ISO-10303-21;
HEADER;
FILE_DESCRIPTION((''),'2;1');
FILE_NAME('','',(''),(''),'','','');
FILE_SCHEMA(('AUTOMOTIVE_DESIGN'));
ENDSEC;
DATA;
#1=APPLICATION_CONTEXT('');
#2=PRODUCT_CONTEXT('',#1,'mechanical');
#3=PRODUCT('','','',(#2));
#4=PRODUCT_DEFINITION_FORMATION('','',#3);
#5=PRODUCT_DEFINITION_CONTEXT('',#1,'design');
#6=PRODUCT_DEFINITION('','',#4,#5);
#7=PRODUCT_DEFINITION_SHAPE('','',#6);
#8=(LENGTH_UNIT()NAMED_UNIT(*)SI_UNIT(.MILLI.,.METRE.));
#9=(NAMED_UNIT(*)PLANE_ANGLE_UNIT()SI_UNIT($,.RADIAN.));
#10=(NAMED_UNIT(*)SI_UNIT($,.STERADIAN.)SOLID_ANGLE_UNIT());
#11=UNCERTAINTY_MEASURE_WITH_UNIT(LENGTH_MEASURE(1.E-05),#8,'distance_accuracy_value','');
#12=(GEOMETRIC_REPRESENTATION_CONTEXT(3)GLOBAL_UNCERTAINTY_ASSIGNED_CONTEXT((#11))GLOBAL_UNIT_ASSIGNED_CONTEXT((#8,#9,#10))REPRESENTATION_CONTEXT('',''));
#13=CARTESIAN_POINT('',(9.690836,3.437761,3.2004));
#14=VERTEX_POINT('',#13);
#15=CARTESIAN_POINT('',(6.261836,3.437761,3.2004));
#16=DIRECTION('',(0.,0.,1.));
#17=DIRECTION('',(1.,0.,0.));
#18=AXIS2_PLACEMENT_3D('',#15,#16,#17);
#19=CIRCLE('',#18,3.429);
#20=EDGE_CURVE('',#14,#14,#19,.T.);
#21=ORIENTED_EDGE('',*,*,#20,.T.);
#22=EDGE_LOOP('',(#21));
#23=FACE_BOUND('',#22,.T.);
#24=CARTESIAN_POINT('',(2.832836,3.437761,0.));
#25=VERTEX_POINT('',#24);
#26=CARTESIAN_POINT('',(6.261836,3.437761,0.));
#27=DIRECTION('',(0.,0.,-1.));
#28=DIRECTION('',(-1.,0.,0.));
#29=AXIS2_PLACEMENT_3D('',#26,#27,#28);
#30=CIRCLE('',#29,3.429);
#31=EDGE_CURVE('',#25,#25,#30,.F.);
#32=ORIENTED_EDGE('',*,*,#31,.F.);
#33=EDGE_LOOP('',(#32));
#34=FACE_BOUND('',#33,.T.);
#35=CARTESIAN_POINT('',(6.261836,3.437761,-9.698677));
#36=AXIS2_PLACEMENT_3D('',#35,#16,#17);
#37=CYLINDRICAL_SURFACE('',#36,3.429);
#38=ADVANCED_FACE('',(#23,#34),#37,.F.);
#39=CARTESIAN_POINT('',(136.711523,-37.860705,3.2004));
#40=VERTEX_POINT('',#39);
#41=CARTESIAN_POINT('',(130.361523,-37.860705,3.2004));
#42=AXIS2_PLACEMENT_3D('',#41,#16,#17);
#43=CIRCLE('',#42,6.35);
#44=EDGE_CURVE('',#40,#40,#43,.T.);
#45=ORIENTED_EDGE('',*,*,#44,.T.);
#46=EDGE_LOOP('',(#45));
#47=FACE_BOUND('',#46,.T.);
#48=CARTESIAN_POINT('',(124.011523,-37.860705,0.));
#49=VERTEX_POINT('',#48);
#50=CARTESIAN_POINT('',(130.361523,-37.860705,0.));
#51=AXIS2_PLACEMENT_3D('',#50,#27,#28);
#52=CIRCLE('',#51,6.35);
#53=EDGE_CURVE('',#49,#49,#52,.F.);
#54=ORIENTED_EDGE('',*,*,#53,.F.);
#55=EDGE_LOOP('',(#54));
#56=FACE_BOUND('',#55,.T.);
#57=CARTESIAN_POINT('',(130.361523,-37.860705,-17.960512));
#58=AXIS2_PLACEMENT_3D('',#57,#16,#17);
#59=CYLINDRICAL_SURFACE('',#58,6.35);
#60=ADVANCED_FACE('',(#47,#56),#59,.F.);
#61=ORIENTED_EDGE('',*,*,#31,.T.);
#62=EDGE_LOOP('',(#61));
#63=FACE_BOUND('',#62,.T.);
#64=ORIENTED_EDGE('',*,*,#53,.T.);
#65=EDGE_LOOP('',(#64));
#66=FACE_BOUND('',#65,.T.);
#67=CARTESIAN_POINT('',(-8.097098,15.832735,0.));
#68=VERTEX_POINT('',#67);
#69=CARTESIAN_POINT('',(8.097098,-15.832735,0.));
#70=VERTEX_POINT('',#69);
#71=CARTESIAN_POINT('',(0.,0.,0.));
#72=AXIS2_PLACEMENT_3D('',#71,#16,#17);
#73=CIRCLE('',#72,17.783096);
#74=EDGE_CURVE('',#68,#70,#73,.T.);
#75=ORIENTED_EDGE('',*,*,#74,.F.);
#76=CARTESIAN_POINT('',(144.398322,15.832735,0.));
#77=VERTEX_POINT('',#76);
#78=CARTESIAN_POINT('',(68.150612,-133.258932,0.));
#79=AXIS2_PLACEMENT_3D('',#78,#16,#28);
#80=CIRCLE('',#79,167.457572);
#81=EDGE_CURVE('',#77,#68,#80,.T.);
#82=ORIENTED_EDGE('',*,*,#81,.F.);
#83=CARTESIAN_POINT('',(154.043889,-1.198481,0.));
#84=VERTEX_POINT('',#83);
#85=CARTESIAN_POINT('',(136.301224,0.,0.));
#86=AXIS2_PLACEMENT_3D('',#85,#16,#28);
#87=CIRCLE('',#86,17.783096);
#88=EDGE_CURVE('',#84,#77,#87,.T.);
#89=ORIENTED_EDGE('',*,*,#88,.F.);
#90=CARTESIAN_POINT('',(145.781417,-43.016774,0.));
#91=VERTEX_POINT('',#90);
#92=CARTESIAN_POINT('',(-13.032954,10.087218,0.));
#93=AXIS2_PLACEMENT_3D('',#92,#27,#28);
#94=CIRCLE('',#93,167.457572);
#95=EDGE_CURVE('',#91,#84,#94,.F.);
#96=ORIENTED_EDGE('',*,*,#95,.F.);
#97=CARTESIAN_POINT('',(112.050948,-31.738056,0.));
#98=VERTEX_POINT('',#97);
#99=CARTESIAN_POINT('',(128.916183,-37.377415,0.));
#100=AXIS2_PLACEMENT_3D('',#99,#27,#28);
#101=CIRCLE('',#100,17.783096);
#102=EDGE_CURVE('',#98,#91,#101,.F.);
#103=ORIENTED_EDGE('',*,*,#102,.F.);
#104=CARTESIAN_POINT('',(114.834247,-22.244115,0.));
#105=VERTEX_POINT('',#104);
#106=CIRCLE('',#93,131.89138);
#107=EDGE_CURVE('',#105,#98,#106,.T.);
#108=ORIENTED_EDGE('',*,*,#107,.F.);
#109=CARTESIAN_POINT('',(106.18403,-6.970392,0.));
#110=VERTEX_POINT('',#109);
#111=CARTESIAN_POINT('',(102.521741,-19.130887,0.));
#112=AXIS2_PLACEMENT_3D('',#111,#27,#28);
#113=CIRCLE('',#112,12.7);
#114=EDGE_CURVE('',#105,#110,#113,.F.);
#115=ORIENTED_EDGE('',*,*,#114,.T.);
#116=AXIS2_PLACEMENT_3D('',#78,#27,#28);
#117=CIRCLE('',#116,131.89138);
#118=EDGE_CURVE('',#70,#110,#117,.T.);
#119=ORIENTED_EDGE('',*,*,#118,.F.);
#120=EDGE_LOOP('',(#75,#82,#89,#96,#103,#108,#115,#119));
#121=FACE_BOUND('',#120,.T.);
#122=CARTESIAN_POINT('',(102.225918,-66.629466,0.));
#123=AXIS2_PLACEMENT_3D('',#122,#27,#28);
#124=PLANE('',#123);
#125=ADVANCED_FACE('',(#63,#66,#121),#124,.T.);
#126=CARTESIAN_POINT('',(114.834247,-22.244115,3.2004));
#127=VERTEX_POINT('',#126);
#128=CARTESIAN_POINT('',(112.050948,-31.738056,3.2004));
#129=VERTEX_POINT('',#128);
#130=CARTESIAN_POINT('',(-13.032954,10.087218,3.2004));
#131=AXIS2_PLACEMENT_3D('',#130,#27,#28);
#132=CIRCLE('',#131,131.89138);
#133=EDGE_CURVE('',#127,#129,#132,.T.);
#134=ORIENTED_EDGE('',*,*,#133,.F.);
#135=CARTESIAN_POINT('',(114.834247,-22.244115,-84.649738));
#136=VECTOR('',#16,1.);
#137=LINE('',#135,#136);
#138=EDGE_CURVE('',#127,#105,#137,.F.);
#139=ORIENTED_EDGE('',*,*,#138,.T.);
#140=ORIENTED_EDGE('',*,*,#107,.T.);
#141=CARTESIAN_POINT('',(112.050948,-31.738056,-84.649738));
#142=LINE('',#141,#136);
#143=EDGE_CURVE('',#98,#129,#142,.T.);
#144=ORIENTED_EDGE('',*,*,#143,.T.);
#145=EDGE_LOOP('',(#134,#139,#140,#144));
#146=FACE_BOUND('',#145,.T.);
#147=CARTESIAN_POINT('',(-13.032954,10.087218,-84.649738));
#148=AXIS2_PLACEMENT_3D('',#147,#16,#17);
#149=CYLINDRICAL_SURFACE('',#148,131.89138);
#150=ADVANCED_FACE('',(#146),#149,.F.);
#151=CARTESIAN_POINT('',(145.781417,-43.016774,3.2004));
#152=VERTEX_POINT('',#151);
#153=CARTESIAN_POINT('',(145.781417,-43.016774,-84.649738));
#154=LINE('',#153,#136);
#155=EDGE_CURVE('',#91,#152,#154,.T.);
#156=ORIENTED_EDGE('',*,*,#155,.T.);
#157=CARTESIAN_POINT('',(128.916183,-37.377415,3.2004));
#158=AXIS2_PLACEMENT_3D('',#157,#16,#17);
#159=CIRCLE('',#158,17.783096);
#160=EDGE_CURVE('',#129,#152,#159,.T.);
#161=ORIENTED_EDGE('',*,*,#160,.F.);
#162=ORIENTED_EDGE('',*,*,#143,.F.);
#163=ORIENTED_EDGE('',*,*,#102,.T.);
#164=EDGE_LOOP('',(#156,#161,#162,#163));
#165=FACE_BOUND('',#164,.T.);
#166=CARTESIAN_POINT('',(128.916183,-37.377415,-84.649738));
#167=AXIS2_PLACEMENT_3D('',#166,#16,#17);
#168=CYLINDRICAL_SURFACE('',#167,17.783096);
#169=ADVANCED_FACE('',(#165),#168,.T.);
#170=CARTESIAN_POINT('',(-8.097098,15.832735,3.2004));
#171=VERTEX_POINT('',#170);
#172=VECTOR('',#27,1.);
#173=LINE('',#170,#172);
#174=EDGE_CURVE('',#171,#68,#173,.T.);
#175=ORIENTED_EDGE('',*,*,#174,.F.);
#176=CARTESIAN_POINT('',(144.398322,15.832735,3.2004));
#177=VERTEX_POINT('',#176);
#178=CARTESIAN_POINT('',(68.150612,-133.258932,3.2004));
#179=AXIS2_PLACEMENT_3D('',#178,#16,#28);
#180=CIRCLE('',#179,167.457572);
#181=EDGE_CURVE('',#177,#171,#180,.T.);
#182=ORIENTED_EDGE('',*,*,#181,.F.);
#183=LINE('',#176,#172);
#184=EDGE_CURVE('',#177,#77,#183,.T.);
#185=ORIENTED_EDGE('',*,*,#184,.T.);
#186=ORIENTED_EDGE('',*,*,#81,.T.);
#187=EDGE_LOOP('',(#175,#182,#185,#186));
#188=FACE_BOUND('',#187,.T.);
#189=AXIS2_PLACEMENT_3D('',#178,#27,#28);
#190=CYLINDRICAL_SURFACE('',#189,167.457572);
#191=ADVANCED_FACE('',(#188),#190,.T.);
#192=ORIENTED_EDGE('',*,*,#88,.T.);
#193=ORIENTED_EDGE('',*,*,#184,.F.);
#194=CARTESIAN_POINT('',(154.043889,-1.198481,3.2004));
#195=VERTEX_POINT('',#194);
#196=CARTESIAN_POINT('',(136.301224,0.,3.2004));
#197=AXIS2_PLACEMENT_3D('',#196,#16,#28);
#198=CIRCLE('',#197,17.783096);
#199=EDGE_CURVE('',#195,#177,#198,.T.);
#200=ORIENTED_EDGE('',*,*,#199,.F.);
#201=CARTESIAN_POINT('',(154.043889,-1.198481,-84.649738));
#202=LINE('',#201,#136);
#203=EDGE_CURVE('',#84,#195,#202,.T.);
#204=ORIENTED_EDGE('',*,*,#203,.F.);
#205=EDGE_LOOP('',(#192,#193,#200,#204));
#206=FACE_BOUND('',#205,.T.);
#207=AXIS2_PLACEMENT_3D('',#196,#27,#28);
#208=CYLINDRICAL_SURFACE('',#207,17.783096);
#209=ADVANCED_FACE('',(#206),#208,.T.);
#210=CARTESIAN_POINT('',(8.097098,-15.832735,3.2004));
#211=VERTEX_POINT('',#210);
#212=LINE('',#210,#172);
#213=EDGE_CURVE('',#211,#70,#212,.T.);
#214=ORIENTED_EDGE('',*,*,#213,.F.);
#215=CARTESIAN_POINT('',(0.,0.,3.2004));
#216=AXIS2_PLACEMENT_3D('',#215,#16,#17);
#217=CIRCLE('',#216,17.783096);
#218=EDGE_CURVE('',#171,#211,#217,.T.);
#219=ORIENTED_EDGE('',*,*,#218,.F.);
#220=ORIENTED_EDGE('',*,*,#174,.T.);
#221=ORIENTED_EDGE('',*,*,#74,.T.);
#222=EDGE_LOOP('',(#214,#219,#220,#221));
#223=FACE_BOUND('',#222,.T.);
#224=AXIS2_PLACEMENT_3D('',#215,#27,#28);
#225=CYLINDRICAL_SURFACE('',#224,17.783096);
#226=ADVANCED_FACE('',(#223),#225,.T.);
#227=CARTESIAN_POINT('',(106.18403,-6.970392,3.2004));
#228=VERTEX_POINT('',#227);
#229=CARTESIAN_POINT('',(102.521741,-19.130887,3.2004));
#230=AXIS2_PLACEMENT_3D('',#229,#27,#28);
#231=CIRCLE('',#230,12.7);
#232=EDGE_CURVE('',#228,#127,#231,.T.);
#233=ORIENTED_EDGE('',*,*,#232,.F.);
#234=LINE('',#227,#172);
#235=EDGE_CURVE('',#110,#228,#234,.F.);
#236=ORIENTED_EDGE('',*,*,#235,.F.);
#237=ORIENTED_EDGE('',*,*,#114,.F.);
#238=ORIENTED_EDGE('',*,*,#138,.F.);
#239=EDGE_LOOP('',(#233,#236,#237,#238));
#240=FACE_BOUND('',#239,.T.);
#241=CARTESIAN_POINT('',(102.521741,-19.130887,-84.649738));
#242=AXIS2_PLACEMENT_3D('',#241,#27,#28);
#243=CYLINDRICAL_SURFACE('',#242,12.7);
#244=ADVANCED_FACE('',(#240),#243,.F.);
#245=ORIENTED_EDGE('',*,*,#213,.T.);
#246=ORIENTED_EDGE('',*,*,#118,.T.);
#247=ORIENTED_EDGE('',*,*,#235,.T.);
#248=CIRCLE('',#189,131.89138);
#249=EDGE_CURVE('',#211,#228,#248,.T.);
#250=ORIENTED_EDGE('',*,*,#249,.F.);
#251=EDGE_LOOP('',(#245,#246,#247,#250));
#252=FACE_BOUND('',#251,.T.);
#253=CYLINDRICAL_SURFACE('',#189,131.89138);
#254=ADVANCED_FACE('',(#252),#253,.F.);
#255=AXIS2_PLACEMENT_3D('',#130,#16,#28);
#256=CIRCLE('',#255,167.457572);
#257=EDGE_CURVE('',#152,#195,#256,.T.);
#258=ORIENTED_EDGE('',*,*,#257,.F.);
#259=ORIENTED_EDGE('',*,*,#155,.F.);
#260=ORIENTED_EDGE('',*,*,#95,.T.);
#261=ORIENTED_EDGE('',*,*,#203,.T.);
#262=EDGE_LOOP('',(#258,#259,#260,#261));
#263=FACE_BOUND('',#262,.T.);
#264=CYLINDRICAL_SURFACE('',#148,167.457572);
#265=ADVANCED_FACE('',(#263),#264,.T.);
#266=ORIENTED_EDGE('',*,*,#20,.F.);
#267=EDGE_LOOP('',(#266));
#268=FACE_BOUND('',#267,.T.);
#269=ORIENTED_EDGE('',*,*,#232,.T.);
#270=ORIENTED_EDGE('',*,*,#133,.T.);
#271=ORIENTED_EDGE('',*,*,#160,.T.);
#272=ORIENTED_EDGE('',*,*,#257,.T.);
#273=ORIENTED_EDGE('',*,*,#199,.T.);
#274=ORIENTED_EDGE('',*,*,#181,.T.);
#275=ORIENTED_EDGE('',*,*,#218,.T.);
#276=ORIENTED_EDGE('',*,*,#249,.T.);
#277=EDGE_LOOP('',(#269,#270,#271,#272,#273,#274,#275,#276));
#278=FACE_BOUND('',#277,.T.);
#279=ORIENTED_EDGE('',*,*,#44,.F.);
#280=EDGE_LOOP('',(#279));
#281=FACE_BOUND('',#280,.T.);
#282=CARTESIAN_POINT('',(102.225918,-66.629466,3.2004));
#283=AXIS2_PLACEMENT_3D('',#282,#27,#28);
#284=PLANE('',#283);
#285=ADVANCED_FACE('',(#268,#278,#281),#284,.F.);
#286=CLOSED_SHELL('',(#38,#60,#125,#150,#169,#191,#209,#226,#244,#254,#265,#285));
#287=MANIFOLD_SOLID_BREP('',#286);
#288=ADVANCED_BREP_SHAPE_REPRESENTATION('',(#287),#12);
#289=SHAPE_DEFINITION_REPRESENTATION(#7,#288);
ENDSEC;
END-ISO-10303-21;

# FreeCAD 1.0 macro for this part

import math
import FreeCAD as App
import Part
import Sketcher

V = App.Vector
Q = App.Units.Quantity


def edges_at(feature, points):
    """Names of the edges that pass closest to the given points."""
    edges = feature.Shape.Edges
    near = lambda p: min(range(len(edges)), key=lambda i: edges[i].distToShape(Part.Vertex(*p))[0])
    return sorted({f"Edge{near(p) + 1}" for p in points})

doc = App.newDocument("Part")
body = doc.addObject("PartDesign::Body", "Body")

sketch1 = body.newObject("Sketcher::SketchObject", "Sketch")
sketch1.AttachmentSupport = (doc.getObject("XY_Plane"), [""])
sketch1.MapMode = "FlatFace"
sketch1.addGeometry([
    Part.ArcOfCircle(Part.Circle(V(68, -133, 0), V(0, 0, 1), 167), math.radians(63), math.radians(117)),
    Part.ArcOfCircle(Part.Circle(V(0, 0, 0), V(0, 0, 1), 18), math.radians(117), math.radians(297)),
    Part.ArcOfCircle(Part.Circle(V(68, -133, 0), V(0, 0, 1), 132), math.radians(63), math.radians(117)),
    Part.ArcOfCircle(Part.Circle(V(136, 0, 0), V(0, 0, 1), 18), math.radians(-117), math.radians(63)),
], False)
sketch1.addConstraint([
    Sketcher.Constraint("Tangent", 0, 2, 1, 1),
    Sketcher.Constraint("Tangent", 1, 2, 2, 2),
    Sketcher.Constraint("Tangent", 2, 1, 3, 1),
    Sketcher.Constraint("Tangent", 3, 2, 0, 1),
    Sketcher.Constraint("Coincident", 1, 3, -1, 1),
    Sketcher.Constraint("Coincident", 2, 3, 0, 3),
    Sketcher.Constraint("PointOnObject", 3, 3, -1),
    Sketcher.Constraint("Radius", 0, 167.457572),
    Sketcher.Constraint("Radius", 2, 131.89138),
    Sketcher.Constraint("DistanceY", 0, 3, -1, 1, 133.258932),
])
pad1 = body.newObject("PartDesign::Pad", "Pad")
pad1.Profile = sketch1
pad1.Length = Q("0.126 in")

sketch2 = body.newObject("Sketcher::SketchObject", "Sketch001")
sketch2.AttachmentSupport = (doc.getObject("XY_Plane"), [""])
sketch2.MapMode = "FlatFace"
sketch2.AttachmentOffset = App.Placement(V(0, 0, 0.126 * 25.4), App.Rotation())
sketch2.addGeometry(Part.Circle(V(6.3, 3.4, 0), V(0, 0, 1), 3.4), False)
sketch2.addConstraint([
    Sketcher.Constraint("Diameter", 0, Q("0.27 in")),
    Sketcher.Constraint("DistanceY", -1, 1, 0, 3, 3.437761),
    Sketcher.Constraint("DistanceX", -1, 1, 0, 3, 6.261836),
])
pocket1 = body.newObject("PartDesign::Pocket", "Pocket")
pocket1.Profile = sketch2
pocket1.Length = Q("0.126 in")

sketch3 = body.newObject("Sketcher::SketchObject", "Sketch002")
sketch3.AttachmentSupport = (doc.getObject("XY_Plane"), [""])
sketch3.MapMode = "FlatFace"
sketch3.addGeometry([
    Part.ArcOfCircle(Part.Circle(V(136, 0, 0), V(0, 0, 1), 18), math.radians(-4), math.radians(176)),
    Part.ArcOfCircle(Part.Circle(V(-13, 10, 0), V(0, 0, 1), 132), math.radians(-18.49), math.radians(-3.86)),
    Part.ArcOfCircle(Part.Circle(V(129, -37, 0), V(0, 0, 1), 18), math.radians(162), math.radians(342)),
    Part.ArcOfCircle(Part.Circle(V(-13, 10, 0), V(0, 0, 1), 167), math.radians(-18.49), math.radians(-3.86)),
], False)
sketch3.addConstraint([
    Sketcher.Constraint("Tangent", 0, 2, 1, 2),
    Sketcher.Constraint("Tangent", 1, 1, 2, 1),
    Sketcher.Constraint("Tangent", 2, 2, 3, 1),
    Sketcher.Constraint("Tangent", 3, 2, 0, 1),
    Sketcher.Constraint("Coincident", 3, 3, 1, 3),
    Sketcher.Constraint("PointOnObject", 0, 3, -1),
    Sketcher.Constraint("Radius", 1, 131.89138),
    Sketcher.Constraint("Radius", 3, 167.457572),
    Sketcher.Constraint("DistanceY", -1, 1, 1, 3, 10.087218),
    Sketcher.Constraint("DistanceX", -1, 1, 0, 2, 118.55856),
    Sketcher.Constraint("DistanceX", -1, 1, 1, 1, 112.050948),
])
pad2 = body.newObject("PartDesign::Pad", "Pad001")
pad2.Profile = sketch3
pad2.Length = Q("0.126 in")

sketch4 = body.newObject("Sketcher::SketchObject", "Sketch003")
sketch4.AttachmentSupport = (doc.getObject("XY_Plane"), [""])
sketch4.MapMode = "FlatFace"
sketch4.AttachmentOffset = App.Placement(V(0, 0, 0.126 * 25.4), App.Rotation())
sketch4.addGeometry(Part.Circle(V(130, -38, 0), V(0, 0, 1), 6), False)
sketch4.addConstraint([
    Sketcher.Constraint("Diameter", 0, Q("0.5 in")),
    Sketcher.Constraint("DistanceX", -1, 1, 0, 3, 130.361523),
    Sketcher.Constraint("DistanceY", 0, 3, -1, 1, 37.860705),
])
pocket2 = body.newObject("PartDesign::Pocket", "Pocket001")
pocket2.Profile = sketch4
pocket2.Length = Q("0.126 in")
doc.recompute()

fillet = body.newObject("PartDesign::Fillet", "Fillet")
fillet.Base = (pocket2, edges_at(pocket2, [(117.19, -10.823, 1.6)]))
fillet.Radius = Q("0.5 in")

doc.recompute()
